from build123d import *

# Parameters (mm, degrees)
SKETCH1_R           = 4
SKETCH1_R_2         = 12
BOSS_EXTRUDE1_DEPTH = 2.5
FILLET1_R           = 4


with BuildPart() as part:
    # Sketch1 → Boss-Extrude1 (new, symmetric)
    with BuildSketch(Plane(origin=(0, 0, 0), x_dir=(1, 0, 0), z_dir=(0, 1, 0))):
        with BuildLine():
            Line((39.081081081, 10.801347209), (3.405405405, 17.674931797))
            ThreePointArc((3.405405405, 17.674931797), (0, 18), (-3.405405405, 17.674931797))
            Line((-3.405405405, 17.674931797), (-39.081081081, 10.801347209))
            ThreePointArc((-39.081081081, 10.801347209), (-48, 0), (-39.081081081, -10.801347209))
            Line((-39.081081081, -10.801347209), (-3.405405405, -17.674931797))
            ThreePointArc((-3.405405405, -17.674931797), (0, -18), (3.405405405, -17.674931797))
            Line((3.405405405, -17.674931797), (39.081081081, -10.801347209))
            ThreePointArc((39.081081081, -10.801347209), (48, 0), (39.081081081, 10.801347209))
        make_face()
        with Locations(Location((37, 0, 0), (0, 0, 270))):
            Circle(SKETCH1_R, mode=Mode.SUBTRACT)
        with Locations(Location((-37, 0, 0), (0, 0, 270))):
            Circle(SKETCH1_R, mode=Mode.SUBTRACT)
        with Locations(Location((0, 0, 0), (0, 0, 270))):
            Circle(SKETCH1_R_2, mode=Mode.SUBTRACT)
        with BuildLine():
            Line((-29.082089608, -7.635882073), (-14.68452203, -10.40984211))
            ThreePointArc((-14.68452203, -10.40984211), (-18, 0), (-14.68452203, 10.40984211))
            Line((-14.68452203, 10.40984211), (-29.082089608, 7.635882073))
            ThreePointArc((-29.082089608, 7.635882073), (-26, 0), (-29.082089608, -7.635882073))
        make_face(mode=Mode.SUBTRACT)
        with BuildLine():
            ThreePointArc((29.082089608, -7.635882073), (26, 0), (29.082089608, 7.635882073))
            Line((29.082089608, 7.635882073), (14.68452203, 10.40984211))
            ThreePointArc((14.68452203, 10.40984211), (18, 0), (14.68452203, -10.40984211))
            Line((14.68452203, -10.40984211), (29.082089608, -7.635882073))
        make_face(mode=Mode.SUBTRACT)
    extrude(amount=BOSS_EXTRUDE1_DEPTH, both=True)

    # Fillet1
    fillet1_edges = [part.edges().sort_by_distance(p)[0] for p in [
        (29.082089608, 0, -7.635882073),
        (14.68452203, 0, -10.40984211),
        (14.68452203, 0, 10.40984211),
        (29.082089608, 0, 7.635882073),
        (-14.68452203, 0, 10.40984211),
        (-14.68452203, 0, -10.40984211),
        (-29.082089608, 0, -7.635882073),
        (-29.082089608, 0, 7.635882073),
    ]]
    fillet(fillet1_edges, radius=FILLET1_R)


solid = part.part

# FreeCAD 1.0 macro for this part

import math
import FreeCAD as App
import Part
import Sketcher

V = App.Vector


def edges_at(feature, points):
    """Names of the edges that pass closest to the given points."""
    edges = feature.Shape.Edges
    near = lambda p: min(range(len(edges)), key=lambda i: edges[i].distToShape(Part.Vertex(*p))[0])
    return sorted({f"Edge{near(p) + 1}" for p in points})

doc = App.newDocument("Part")
params = doc.addObject("Spreadsheet::Sheet", "Params")
for row, (alias, value) in enumerate([
    ("sketch1_diameter", "8 mm"),
    ("sketch1_diameter2", "24 mm"),
    ("sketch1_radius", "18 mm"),
    ("sketch1_radius2", "11 mm"),
    ("pad1_length", "5 mm"),
    ("fillet_radius", "4 mm"),
], start=1):
    params.set(f"A{row}", alias)
    params.set(f"B{row}", "=" + value)
    params.setAlias(f"B{row}", alias)

body = doc.addObject("PartDesign::Body", "Body")

sketch1 = body.newObject("Sketcher::SketchObject", "Sketch")
sketch1.AttachmentSupport = (doc.getObject("XZ_Plane"), [""])
sketch1.MapMode = "FlatFace"
sketch1.addGeometry([
    Part.LineSegment(V(39.081081, -10.801347, 0), V(3.405405, -17.674932, 0)),
    Part.ArcOfCircle(Part.Circle(V(0, 0, 0), V(0, 0, 1), 18), math.radians(-100.90547), math.radians(-79.09453)),
    Part.LineSegment(V(-3.405405, -17.674932, 0), V(-39.081081, -10.801347, 0)),
    Part.ArcOfCircle(Part.Circle(V(-37, 0, 0), V(0, 0, 1), 11), math.radians(100.90547), math.radians(259.09453)),
    Part.LineSegment(V(-39.081081, 10.801347, 0), V(-3.405405, 17.674932, 0)),
    Part.ArcOfCircle(Part.Circle(V(0, 0, 0), V(0, 0, 1), 18), math.radians(79.09453), math.radians(100.90547)),
    Part.LineSegment(V(3.405405, 17.674932, 0), V(39.081081, 10.801347, 0)),
    Part.ArcOfCircle(Part.Circle(V(37, 0, 0), V(0, 0, 1), 11), math.radians(-79.09453), math.radians(79.09453)),
    Part.Circle(V(-37, 0, 0), V(0, 0, 1), 4),
    Part.LineSegment(V(-14.684522, 10.409842, 0), V(-29.08209, 7.635882, 0)),
    Part.ArcOfCircle(Part.Circle(V(-37, 0, 0), V(0, 0, 1), 11), math.radians(-43.961201), math.radians(43.961201)),
    Part.LineSegment(V(-29.08209, -7.635882, 0), V(-14.684522, -10.409842, 0)),
    Part.ArcOfCircle(Part.Circle(V(0, 0, 0), V(0, 0, 1), 18), math.radians(144.667213), math.radians(215.332787)),
    Part.Circle(V(0, 0, 0), V(0, 0, 1), 12),
    Part.ArcOfCircle(Part.Circle(V(37, 0, 0), V(0, 0, 1), 11), math.radians(136.038799), math.radians(223.961201)),
    Part.LineSegment(V(29.08209, 7.635882, 0), V(14.684522, 10.409842, 0)),
    Part.ArcOfCircle(Part.Circle(V(0, 0, 0), V(0, 0, 1), 18), math.radians(-35.332787), math.radians(35.332787)),
    Part.LineSegment(V(14.684522, -10.409842, 0), V(29.08209, -7.635882, 0)),
    Part.Circle(V(37, 0, 0), V(0, 0, 1), 4),
], False)
sketch1.addConstraint([
    Sketcher.Constraint("Tangent", 0, 2, 1, 2),
    Sketcher.Constraint("Tangent", 1, 1, 2, 1),
    Sketcher.Constraint("Tangent", 2, 2, 3, 2),
    Sketcher.Constraint("Tangent", 3, 1, 4, 1),
    Sketcher.Constraint("Tangent", 4, 2, 5, 2),
    Sketcher.Constraint("Tangent", 5, 1, 6, 1),
    Sketcher.Constraint("Tangent", 6, 2, 7, 2),
    Sketcher.Constraint("Tangent", 7, 1, 0, 1),
    Sketcher.Constraint("Coincident", 9, 2, 10, 2),
    Sketcher.Constraint("Coincident", 10, 1, 11, 1),
    Sketcher.Constraint("Coincident", 11, 2, 12, 2),
    Sketcher.Constraint("Coincident", 12, 1, 9, 1),
    Sketcher.Constraint("Coincident", 14, 1, 15, 1),
    Sketcher.Constraint("Coincident", 15, 2, 16, 2),
    Sketcher.Constraint("Coincident", 16, 1, 17, 1),
    Sketcher.Constraint("Coincident", 17, 2, 14, 2),
    Sketcher.Constraint("Coincident", 1, 3, -1, 1),
    Sketcher.Constraint("Coincident", 5, 3, -1, 1),
    Sketcher.Constraint("Coincident", 12, 3, -1, 1),
    Sketcher.Constraint("Coincident", 13, 3, -1, 1),
    Sketcher.Constraint("Coincident", 16, 3, -1, 1),
    Sketcher.Constraint("Coincident", 8, 3, 3, 3),
    Sketcher.Constraint("Coincident", 10, 3, 3, 3),
    Sketcher.Constraint("Coincident", 14, 3, 7, 3),
    Sketcher.Constraint("Coincident", 18, 3, 7, 3),
    Sketcher.Constraint("Equal", 1, 5),
    Sketcher.Constraint("Equal", 3, 7),
    Sketcher.Constraint("Equal", 7, 10),
    Sketcher.Constraint("Equal", 5, 12),
    Sketcher.Constraint("Equal", 10, 14),
    Sketcher.Constraint("Equal", 12, 16),
    Sketcher.Constraint("Equal", 8, 18),
    Sketcher.Constraint("Symmetric", 3, 3, 7, 3, -1, 1),
    Sketcher.Constraint("Symmetric", 9, 2, 14, 1, -2),
    Sketcher.Constraint("Parallel", 4, 9),
    Sketcher.Constraint("Parallel", 6, 11),
    Sketcher.Constraint("Parallel", 11, 15),
    Sketcher.Constraint("Parallel", 9, 17),
    Sketcher.Constraint("Horizontal", 11, 2, 16, 1),
    Sketcher.Constraint("Vertical", 9, 2, 10, 1),
    Sketcher.Constraint("Diameter", 8, 8.0),
    Sketcher.Constraint("Diameter", 13, 24.0),
    Sketcher.Constraint("Radius", 1, 18.0),
    Sketcher.Constraint("Radius", 3, 11.0),
    Sketcher.Constraint("DistanceX", 3, 3, -1, 1, 37.0),
    Sketcher.Constraint("Distance", 9, 14.66236),
])
sketch1.setExpression("Constraints[40]", "Params.sketch1_diameter")
sketch1.setExpression("Constraints[41]", "Params.sketch1_diameter2")
sketch1.setExpression("Constraints[42]", "Params.sketch1_radius")
sketch1.setExpression("Constraints[43]", "Params.sketch1_radius2")
pad1 = body.newObject("PartDesign::Pad", "Pad")
pad1.Profile = sketch1
pad1.setExpression("Length", "Params.pad1_length")
pad1.Midplane = True
doc.recompute()

fillet = body.newObject("PartDesign::Fillet", "Fillet")
fillet.Base = (pad1, edges_at(pad1, [
    (29.082, 0, -7.636),
    (14.685, 0, -10.41),
    (14.685, 0, 10.41),
    (29.082, 0, 7.636),
    (-14.685, 0, 10.41),
    (-14.685, 0, -10.41),
    (-29.082, 0, -7.636),
    (-29.082, 0, 7.636),
]))
fillet.setExpression("Radius", "Params.fillet_radius")

doc.recompute()
